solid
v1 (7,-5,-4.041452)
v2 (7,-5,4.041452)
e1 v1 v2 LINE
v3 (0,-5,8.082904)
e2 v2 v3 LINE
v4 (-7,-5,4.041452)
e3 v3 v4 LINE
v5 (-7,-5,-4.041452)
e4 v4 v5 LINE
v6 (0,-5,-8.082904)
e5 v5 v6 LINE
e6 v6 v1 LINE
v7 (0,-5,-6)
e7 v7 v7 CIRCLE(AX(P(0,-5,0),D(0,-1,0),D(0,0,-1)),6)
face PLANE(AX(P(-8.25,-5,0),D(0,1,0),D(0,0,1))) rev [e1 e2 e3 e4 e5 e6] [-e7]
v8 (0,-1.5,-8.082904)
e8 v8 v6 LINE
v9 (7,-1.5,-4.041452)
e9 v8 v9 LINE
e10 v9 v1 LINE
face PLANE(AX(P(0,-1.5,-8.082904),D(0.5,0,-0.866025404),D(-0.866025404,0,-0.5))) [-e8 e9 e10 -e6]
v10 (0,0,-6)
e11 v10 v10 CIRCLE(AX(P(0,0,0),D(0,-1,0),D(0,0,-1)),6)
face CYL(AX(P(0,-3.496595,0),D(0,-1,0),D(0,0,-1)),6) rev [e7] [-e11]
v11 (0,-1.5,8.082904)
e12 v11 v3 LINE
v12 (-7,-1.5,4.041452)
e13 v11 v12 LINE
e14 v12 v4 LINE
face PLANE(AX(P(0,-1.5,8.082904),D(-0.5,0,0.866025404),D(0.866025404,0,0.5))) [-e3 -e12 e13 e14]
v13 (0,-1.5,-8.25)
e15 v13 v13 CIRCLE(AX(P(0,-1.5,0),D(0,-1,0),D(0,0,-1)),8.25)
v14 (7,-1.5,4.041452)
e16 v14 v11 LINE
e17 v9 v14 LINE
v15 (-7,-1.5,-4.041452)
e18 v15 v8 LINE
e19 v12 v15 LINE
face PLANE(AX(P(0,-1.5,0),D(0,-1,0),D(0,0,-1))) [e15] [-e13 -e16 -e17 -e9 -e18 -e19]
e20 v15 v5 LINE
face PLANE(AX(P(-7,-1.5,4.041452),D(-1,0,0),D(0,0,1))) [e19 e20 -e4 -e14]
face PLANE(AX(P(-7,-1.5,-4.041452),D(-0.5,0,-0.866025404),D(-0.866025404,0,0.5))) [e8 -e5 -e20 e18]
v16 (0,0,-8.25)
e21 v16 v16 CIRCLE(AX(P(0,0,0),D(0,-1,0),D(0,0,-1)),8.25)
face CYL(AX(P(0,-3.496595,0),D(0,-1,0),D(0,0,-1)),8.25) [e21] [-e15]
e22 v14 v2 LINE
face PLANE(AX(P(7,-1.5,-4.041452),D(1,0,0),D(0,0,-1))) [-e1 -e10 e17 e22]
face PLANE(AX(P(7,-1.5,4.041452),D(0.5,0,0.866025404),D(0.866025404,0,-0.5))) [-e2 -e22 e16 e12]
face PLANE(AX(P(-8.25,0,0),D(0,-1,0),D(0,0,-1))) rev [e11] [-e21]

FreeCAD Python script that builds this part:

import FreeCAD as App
import Part
import Sketcher
Q = App.Units.Quantity

doc = App.newDocument("Part")
body = doc.addObject("PartDesign::Body", "Body")

# Sketch on XY plane
sketch1 = body.newObject("Sketcher::SketchObject", "Sketch")
sketch1.AttachmentSupport = (doc.getObject("XY_Plane"), [""])
sketch1.MapMode = "FlatFace"
sketch1.addGeometry([
    Part.LineSegment(App.Vector(-8.2, 0, 0), App.Vector(-8.2, -5, 0)),
    Part.LineSegment(App.Vector(-8.2, -5, 0), App.Vector(-6, -5, 0)),
    Part.LineSegment(App.Vector(-6, -5, 0), App.Vector(-6, 0, 0)),
    Part.LineSegment(App.Vector(-6, 0, 0), App.Vector(-8.2, 0, 0)),
], False)
sketch1.addConstraint([
    Sketcher.Constraint("Coincident", 0, 2, 1, 1),
    Sketcher.Constraint("Coincident", 1, 2, 2, 1),
    Sketcher.Constraint("Coincident", 2, 2, 3, 1),
    Sketcher.Constraint("Coincident", 3, 2, 0, 1),
    Sketcher.Constraint("Vertical", 0),
    Sketcher.Constraint("Horizontal", 1),
    Sketcher.Constraint("Vertical", 2),
    Sketcher.Constraint("Horizontal", 3),
    Sketcher.Constraint("PointOnObject", 2, 2, -1),
    Sketcher.Constraint("DistanceY", 0, 2, 0, 1, 5.0),
    Sketcher.Constraint("DistanceX", 1, 2, -1, 1, 6.0),
    Sketcher.Constraint("DistanceX", 1, 1, 1, 2, 2.25),
])
revolution = body.newObject("PartDesign::Revolution", "Revolution")
revolution.Profile = sketch1
revolution.ReferenceAxis = (sketch1, ["V_Axis"])
revolution.Angle = 360

# Sketch on XZ plane
sketch2 = body.newObject("Sketcher::SketchObject", "Sketch001")
sketch2.AttachmentSupport = (doc.getObject("XZ_Plane"), [""])
sketch2.MapMode = "FlatFace"
sketch2.AttachmentOffset = App.Placement(App.Vector(0, 0, 5), App.Rotation())
sketch2.addGeometry([
    Part.Circle(App.Vector(0, 0, 0), App.Vector(0, 0, 1), 8),  # 0
    Part.LineSegment(App.Vector(-7, 4, 0), App.Vector(0, 8, 0)),  # 1
    Part.LineSegment(App.Vector(0, 8, 0), App.Vector(7, 4, 0)),  # 2
    Part.LineSegment(App.Vector(7, 4, 0), App.Vector(7, -4, 0)),  # 3
    Part.LineSegment(App.Vector(7, -4, 0), App.Vector(0, -8, 0)),  # 4
    Part.LineSegment(App.Vector(0, -8, 0), App.Vector(-7, -4, 0)),  # 5
    Part.LineSegment(App.Vector(-7, -4, 0), App.Vector(-7, 4, 0)),  # 6
], False)
sketch2.addConstraint([
    Sketcher.Constraint("Coincident", 1, 2, 2, 1),
    Sketcher.Constraint("Coincident", 2, 2, 3, 1),
    Sketcher.Constraint("Coincident", 3, 2, 4, 1),
    Sketcher.Constraint("Coincident", 4, 2, 5, 1),
    Sketcher.Constraint("Coincident", 5, 2, 6, 1),
    Sketcher.Constraint("Coincident", 6, 2, 1, 1),
    Sketcher.Constraint("Vertical", 3),
    Sketcher.Constraint("Vertical", 6),
    Sketcher.Constraint("Coincident", 0, 3, -1, 1),
    Sketcher.Constraint("Symmetric", 1, 2, 4, 2, -1, 1),
    Sketcher.Constraint("Symmetric", 2, 2, 5, 2, -1, 1),
    Sketcher.Constraint("PointOnObject", 1, 2, -2),
    Sketcher.Constraint("Parallel", 1, 4),
    Sketcher.Constraint("Horizontal", 3, 2, 5, 2),
    Sketcher.Constraint("Diameter", 0, 16.5),
    Sketcher.Constraint("Angle", 1, Q("30 deg")),
    Sketcher.Constraint("DistanceX", -1, 1, 2, 2, 7.0),
    Sketcher.Constraint("DistanceY", 3, 2, 3, 1, 8.082904),
])
pocket1 = body.newObject("PartDesign::Pocket", "Pocket")
pocket1.Profile = sketch2
pocket1.Length = 3.5

doc.recompute()
